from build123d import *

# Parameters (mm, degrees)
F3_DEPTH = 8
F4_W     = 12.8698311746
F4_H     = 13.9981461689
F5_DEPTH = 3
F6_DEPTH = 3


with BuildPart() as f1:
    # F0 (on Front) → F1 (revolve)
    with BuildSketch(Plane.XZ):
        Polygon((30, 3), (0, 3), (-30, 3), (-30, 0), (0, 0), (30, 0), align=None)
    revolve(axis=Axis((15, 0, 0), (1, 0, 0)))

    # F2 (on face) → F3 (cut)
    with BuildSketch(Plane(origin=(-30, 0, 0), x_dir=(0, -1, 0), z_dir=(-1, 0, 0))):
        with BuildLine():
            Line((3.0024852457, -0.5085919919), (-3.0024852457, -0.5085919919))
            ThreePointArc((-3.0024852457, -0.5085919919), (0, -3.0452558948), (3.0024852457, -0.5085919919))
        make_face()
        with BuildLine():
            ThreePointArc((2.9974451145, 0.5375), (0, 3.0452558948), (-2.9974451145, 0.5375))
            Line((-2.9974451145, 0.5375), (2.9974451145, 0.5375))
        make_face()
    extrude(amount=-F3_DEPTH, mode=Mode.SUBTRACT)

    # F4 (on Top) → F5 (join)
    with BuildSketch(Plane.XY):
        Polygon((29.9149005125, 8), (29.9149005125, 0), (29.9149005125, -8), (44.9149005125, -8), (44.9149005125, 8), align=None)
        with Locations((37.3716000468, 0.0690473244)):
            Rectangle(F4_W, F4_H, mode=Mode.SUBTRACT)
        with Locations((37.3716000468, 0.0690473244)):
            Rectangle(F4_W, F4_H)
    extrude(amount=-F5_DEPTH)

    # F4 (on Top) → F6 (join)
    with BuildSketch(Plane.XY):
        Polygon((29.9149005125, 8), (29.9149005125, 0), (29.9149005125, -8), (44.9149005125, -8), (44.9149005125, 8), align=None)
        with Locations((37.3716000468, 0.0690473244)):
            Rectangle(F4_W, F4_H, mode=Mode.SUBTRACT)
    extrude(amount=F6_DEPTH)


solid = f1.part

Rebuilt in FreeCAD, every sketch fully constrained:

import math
import FreeCAD as App
import Part
import Sketcher

V = App.Vector
Q = App.Units.Quantity


def add_polygon(sketch, points):
    """Adds a closed chain of lines whose ends are joined by coincident constraints."""
    first, n = sketch.GeometryCount, len(points)
    for a, b in zip(points, points[1:] + points[:1]):
        sketch.addGeometry(Part.LineSegment(App.Vector(*a, 0), App.Vector(*b, 0)), False)
    for i in range(n):
        sketch.addConstraint(Sketcher.Constraint("Coincident", first + i, 2, first + (i + 1) % n, 1))

doc = App.newDocument("Part")
body = doc.addObject("PartDesign::Body", "Body")

sketch1 = body.newObject("Sketcher::SketchObject", "Sketch")
sketch1.AttachmentSupport = (doc.getObject("XZ_Plane"), [""])
sketch1.MapMode = "FlatFace"
add_polygon(sketch1, [(30, 3), (-30, 3), (-30, 0), (30, 0)])
sketch1.addConstraint(Sketcher.Constraint("Horizontal", 0))
sketch1.addConstraint(Sketcher.Constraint("Vertical", 1))
sketch1.addConstraint(Sketcher.Constraint("Horizontal", 2))
sketch1.addConstraint(Sketcher.Constraint("Vertical", 3))
sketch1.addConstraint(Sketcher.Constraint("Symmetric", 1, 2, 2, 2, -1, 1))
sketch1.addConstraint(Sketcher.Constraint("DistanceX", 0, 2, 0, 1, Q("60 mm")))
sketch1.addConstraint(Sketcher.Constraint("DistanceY", 1, 2, 1, 1, Q("3 mm")))
revolution = body.newObject("PartDesign::Revolution", "Revolution")
revolution.Profile = sketch1
revolution.ReferenceAxis = (sketch1, ["H_Axis"])
revolution.Angle = 360

sketch2 = body.newObject("Sketcher::SketchObject", "Sketch001")
sketch2.AttachmentSupport = (doc.getObject("YZ_Plane"), [""])
sketch2.MapMode = "FlatFace"
sketch2.AttachmentOffset = App.Placement(V(0, 0, -30), App.Rotation())
sketch2.addGeometry(Part.LineSegment(V(-3, -0.5, 0), V(3, -0.5, 0)), False)
sketch2.addGeometry(Part.ArcOfCircle(Part.Circle(V(0, 0, 0), V(0, 0, 1), 3), math.radians(-170), math.radians(-10)), False)
sketch2.addGeometry(Part.ArcOfCircle(Part.Circle(V(0, 0, 0), V(0, 0, 1), 3), math.radians(10), math.radians(170)), False)
sketch2.addGeometry(Part.LineSegment(V(3, 0.5, 0), V(-3, 0.5, 0)), False)
sketch2.addConstraint(Sketcher.Constraint("Coincident", 0, 1, 1, 1))
sketch2.addConstraint(Sketcher.Constraint("Coincident", 1, 2, 0, 2))
sketch2.addConstraint(Sketcher.Constraint("Coincident", 2, 1, 3, 1))
sketch2.addConstraint(Sketcher.Constraint("Coincident", 3, 2, 2, 2))
sketch2.addConstraint(Sketcher.Constraint("Horizontal", 0))
sketch2.addConstraint(Sketcher.Constraint("Horizontal", 3))
sketch2.addConstraint(Sketcher.Constraint("Coincident", 1, 3, -1, 1))
sketch2.addConstraint(Sketcher.Constraint("Coincident", 2, 3, -1, 1))
sketch2.addConstraint(Sketcher.Constraint("Equal", 1, 2))
sketch2.addConstraint(Sketcher.Constraint("Radius", 1, Q("3.045256 mm")))
sketch2.addConstraint(Sketcher.Constraint("DistanceX", 0, 1, 0, 2, Q("6.00497 mm")))
sketch2.addConstraint(Sketcher.Constraint("DistanceX", 3, 2, 3, 1, Q("5.99489 mm")))
pocket1 = body.newObject("PartDesign::Pocket", "Pocket")
pocket1.Profile = sketch2
pocket1.Length = 8
pocket1.Reversed = True

sketch3 = body.newObject("Sketcher::SketchObject", "Sketch002")
sketch3.AttachmentSupport = (doc.getObject("XY_Plane"), [""])
sketch3.MapMode = "FlatFace"
add_polygon(sketch3, [(30, 8), (30, -8), (45, -8), (45, 8)])
sketch3.addConstraint(Sketcher.Constraint("Vertical", 0))
sketch3.addConstraint(Sketcher.Constraint("Horizontal", 1))
sketch3.addConstraint(Sketcher.Constraint("Vertical", 2))
sketch3.addConstraint(Sketcher.Constraint("Horizontal", 3))
sketch3.addConstraint(Sketcher.Constraint("DistanceX", 1, 1, 1, 2, Q("15 mm")))
sketch3.addConstraint(Sketcher.Constraint("DistanceY", 0, 2, 0, 1, Q("16 mm")))
sketch3.addConstraint(Sketcher.Constraint("DistanceY", 0, 2, -1, 1, Q("8 mm")))
sketch3.addConstraint(Sketcher.Constraint("DistanceX", -1, 1, 0, 2, Q("29.914901 mm")))
pad1 = body.newObject("PartDesign::Pad", "Pad")
pad1.Profile = sketch3
pad1.Length = 3
pad1.Reversed = True

sketch4 = body.newObject("Sketcher::SketchObject", "Sketch003")
sketch4.AttachmentSupport = (doc.getObject("XY_Plane"), [""])
sketch4.MapMode = "FlatFace"
add_polygon(sketch4, [(30, 8), (30, -8), (45, -8), (45, 8)])
add_polygon(sketch4, [(44, -7), (31, -7), (31, 7), (44, 7)])
sketch4.addConstraint(Sketcher.Constraint("Vertical", 0))
sketch4.addConstraint(Sketcher.Constraint("Horizontal", 1))
sketch4.addConstraint(Sketcher.Constraint("Vertical", 2))
sketch4.addConstraint(Sketcher.Constraint("Horizontal", 3))
sketch4.addConstraint(Sketcher.Constraint("Horizontal", 4))
sketch4.addConstraint(Sketcher.Constraint("Vertical", 5))
sketch4.addConstraint(Sketcher.Constraint("Horizontal", 6))
sketch4.addConstraint(Sketcher.Constraint("Vertical", 7))
sketch4.addConstraint(Sketcher.Constraint("DistanceX", 1, 1, 1, 2, Q("15 mm")))
sketch4.addConstraint(Sketcher.Constraint("DistanceY", 0, 2, 0, 1, Q("16 mm")))
sketch4.addConstraint(Sketcher.Constraint("DistanceY", 0, 2, -1, 1, Q("8 mm")))
sketch4.addConstraint(Sketcher.Constraint("DistanceX", 4, 2, 4, 1, Q("12.869831 mm")))
sketch4.addConstraint(Sketcher.Constraint("DistanceX", -1, 1, 0, 2, Q("29.914901 mm")))
sketch4.addConstraint(Sketcher.Constraint("DistanceY", 5, 1, 5, 2, Q("13.998146 mm")))
sketch4.addConstraint(Sketcher.Constraint("DistanceY", -1, 1, 5, 2, Q("7.06812 mm")))
sketch4.addConstraint(Sketcher.Constraint("DistanceX", -1, 1, 4, 2, Q("30.936684 mm")))
pad2 = body.newObject("PartDesign::Pad", "Pad001")
pad2.Profile = sketch4
pad2.Length = 3

doc.recompute()
